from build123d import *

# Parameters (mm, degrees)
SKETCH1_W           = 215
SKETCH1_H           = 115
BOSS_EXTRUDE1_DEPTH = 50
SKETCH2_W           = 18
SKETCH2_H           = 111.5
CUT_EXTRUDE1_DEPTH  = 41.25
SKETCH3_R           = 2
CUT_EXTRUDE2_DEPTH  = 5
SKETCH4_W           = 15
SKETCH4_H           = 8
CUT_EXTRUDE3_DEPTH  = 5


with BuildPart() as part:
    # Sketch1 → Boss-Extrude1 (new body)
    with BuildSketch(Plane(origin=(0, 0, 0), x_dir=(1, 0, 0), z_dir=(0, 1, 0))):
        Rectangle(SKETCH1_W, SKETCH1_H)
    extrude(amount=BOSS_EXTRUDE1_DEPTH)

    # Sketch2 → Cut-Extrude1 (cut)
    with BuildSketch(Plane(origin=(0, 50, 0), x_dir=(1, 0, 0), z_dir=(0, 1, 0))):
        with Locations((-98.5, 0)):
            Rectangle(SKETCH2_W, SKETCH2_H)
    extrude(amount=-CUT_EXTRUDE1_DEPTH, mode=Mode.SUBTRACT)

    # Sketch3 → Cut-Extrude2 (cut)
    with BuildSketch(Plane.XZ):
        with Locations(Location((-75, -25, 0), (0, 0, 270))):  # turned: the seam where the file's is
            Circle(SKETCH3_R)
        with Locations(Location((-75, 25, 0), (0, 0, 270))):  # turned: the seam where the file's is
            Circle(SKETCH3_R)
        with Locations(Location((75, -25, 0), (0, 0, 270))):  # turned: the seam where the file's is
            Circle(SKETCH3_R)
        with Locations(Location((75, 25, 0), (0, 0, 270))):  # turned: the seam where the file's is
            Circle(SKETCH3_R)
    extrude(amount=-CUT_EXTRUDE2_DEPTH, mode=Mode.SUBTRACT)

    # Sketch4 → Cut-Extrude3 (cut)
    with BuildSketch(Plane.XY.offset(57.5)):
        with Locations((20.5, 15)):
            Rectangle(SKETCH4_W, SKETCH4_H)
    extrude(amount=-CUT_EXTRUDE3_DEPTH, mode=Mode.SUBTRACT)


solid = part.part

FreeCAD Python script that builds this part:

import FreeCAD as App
import Part
import Sketcher

doc = App.newDocument("Part")
params = doc.addObject("Spreadsheet::Sheet", "Params")
for row, (alias, value) in enumerate([
    ("sketch1_width", "215 mm"),
    ("sketch1_height", "115 mm"),
    ("pad1_length", "50 mm"),
    ("sketch2_width", "18 mm"),
    ("sketch2_height", "111.5 mm"),
    ("pocket1_length", "41.25 mm"),
    ("sketch3_diameter", "4 mm"),
    ("pocket2_length", "5 mm"),
    ("sketch4_width", "15 mm"),
    ("sketch4_height", "8 mm"),
    ("pocket3_length", "5 mm"),
], start=1):
    params.set(f"A{row}", alias)
    params.set(f"B{row}", "=" + value)
    params.setAlias(f"B{row}", alias)

body = doc.addObject("PartDesign::Body", "Body")

# Sketch on XZ plane
sketch1 = body.newObject("Sketcher::SketchObject", "Sketch")
sketch1.AttachmentSupport = (doc.getObject("XZ_Plane"), [""])
sketch1.MapMode = "FlatFace"
sketch1.addGeometry([
    Part.LineSegment(App.Vector(-108, -58, 0), App.Vector(-108, 58, 0)),
    Part.LineSegment(App.Vector(-108, 58, 0), App.Vector(108, 58, 0)),
    Part.LineSegment(App.Vector(108, 58, 0), App.Vector(108, -58, 0)),
    Part.LineSegment(App.Vector(108, -58, 0), App.Vector(-108, -58, 0)),
], False)
sketch1.addConstraint([
    Sketcher.Constraint("Coincident", 0, 2, 1, 1),
    Sketcher.Constraint("Coincident", 1, 2, 2, 1),
    Sketcher.Constraint("Coincident", 2, 2, 3, 1),
    Sketcher.Constraint("Coincident", 3, 2, 0, 1),
    Sketcher.Constraint("Vertical", 0),
    Sketcher.Constraint("Horizontal", 1),
    Sketcher.Constraint("Vertical", 2),
    Sketcher.Constraint("Horizontal", 3),
    Sketcher.Constraint("Symmetric", 0, 2, 2, 2, -1, 1),
    Sketcher.Constraint("DistanceX", 1, 1, 1, 2, 215.0),
    Sketcher.Constraint("DistanceY", 0, 1, 0, 2, 115.0),
])
sketch1.setExpression("Constraints[9]", "Params.sketch1_width")
sketch1.setExpression("Constraints[10]", "Params.sketch1_height")
pad1 = body.newObject("PartDesign::Pad", "Pad")
pad1.Profile = sketch1
pad1.setExpression("Length", "Params.pad1_length")
pad1.Reversed = True

# Sketch on XZ plane
sketch2 = body.newObject("Sketcher::SketchObject", "Sketch001")
sketch2.AttachmentSupport = (doc.getObject("XZ_Plane"), [""])
sketch2.MapMode = "FlatFace"
sketch2.AttachmentOffset = App.Placement(App.Vector(0, 0, -50), App.Rotation())
sketch2.addGeometry([
    Part.LineSegment(App.Vector(-108, -56, 0), App.Vector(-108, 56, 0)),
    Part.LineSegment(App.Vector(-108, 56, 0), App.Vector(-90, 56, 0)),
    Part.LineSegment(App.Vector(-90, 56, 0), App.Vector(-90, -56, 0)),
    Part.LineSegment(App.Vector(-90, -56, 0), App.Vector(-108, -56, 0)),
], False)
sketch2.addConstraint([
    Sketcher.Constraint("Coincident", 0, 2, 1, 1),
    Sketcher.Constraint("Coincident", 1, 2, 2, 1),
    Sketcher.Constraint("Coincident", 2, 2, 3, 1),
    Sketcher.Constraint("Coincident", 3, 2, 0, 1),
    Sketcher.Constraint("Vertical", 0),
    Sketcher.Constraint("Horizontal", 1),
    Sketcher.Constraint("Vertical", 2),
    Sketcher.Constraint("Horizontal", 3),
    Sketcher.Constraint("DistanceX", 1, 1, 1, 2, 18.0),
    Sketcher.Constraint("DistanceY", 0, 1, 0, 2, 111.5),
    Sketcher.Constraint("DistanceX", 0, 2, -1, 1, 107.5),
    Sketcher.Constraint("DistanceY", -1, 1, 0, 2, 55.75),
])
sketch2.setExpression("Constraints[8]", "Params.sketch2_width")
sketch2.setExpression("Constraints[9]", "Params.sketch2_height")
pocket1 = body.newObject("PartDesign::Pocket", "Pocket")
pocket1.Profile = sketch2
pocket1.setExpression("Length", "Params.pocket1_length")
pocket1.Reversed = True

# Sketch on XZ plane
sketch3 = body.newObject("Sketcher::SketchObject", "Sketch002")
sketch3.AttachmentSupport = (doc.getObject("XZ_Plane"), [""])
sketch3.MapMode = "FlatFace"
sketch3.addGeometry([
    Part.Circle(App.Vector(-75, -25, 0), App.Vector(0, 0, 1), 2),
    Part.Circle(App.Vector(-75, 25, 0), App.Vector(0, 0, 1), 2),
    Part.Circle(App.Vector(75, -25, 0), App.Vector(0, 0, 1), 2),
    Part.Circle(App.Vector(75, 25, 0), App.Vector(0, 0, 1), 2),
], False)
sketch3.addConstraint([
    Sketcher.Constraint("Equal", 0, 1),
    Sketcher.Constraint("Equal", 1, 2),
    Sketcher.Constraint("Equal", 2, 3),
    Sketcher.Constraint("Symmetric", 1, 3, 2, 3, -1, 1),
    Sketcher.Constraint("Symmetric", 0, 3, 3, 3, -1, 1),
    Sketcher.Constraint("Symmetric", 0, 3, 2, 3, -2),
    Sketcher.Constraint("Diameter", 0, 4.0),
    Sketcher.Constraint("DistanceX", 0, 3, -1, 1, 75.0),
    Sketcher.Constraint("DistanceY", 0, 3, -1, 1, 25.0),
])
sketch3.setExpression("Constraints[6]", "Params.sketch3_diameter")
pocket2 = body.newObject("PartDesign::Pocket", "Pocket001")
pocket2.Profile = sketch3
pocket2.setExpression("Length", "Params.pocket2_length")

# Sketch on XY plane
sketch4 = body.newObject("Sketcher::SketchObject", "Sketch003")
sketch4.AttachmentSupport = (doc.getObject("XY_Plane"), [""])
sketch4.MapMode = "FlatFace"
sketch4.AttachmentOffset = App.Placement(App.Vector(0, 0, 57.5), App.Rotation())
sketch4.addGeometry([
    Part.LineSegment(App.Vector(13, 19, 0), App.Vector(13, 11, 0)),
    Part.LineSegment(App.Vector(13, 11, 0), App.Vector(28, 11, 0)),
    Part.LineSegment(App.Vector(28, 11, 0), App.Vector(28, 19, 0)),
    Part.LineSegment(App.Vector(28, 19, 0), App.Vector(13, 19, 0)),
], False)
sketch4.addConstraint([
    Sketcher.Constraint("Coincident", 0, 2, 1, 1),
    Sketcher.Constraint("Coincident", 1, 2, 2, 1),
    Sketcher.Constraint("Coincident", 2, 2, 3, 1),
    Sketcher.Constraint("Coincident", 3, 2, 0, 1),
    Sketcher.Constraint("Vertical", 0),
    Sketcher.Constraint("Horizontal", 1),
    Sketcher.Constraint("Vertical", 2),
    Sketcher.Constraint("Horizontal", 3),
    Sketcher.Constraint("DistanceX", 1, 1, 1, 2, 15.0),
    Sketcher.Constraint("DistanceY", 0, 2, 0, 1, 8.0),
    Sketcher.Constraint("DistanceX", -1, 1, 0, 2, 13.0),
    Sketcher.Constraint("DistanceY", -1, 1, 0, 2, 11.0),
])
sketch4.setExpression("Constraints[8]", "Params.sketch4_width")
sketch4.setExpression("Constraints[9]", "Params.sketch4_height")
pocket3 = body.newObject("PartDesign::Pocket", "Pocket002")
pocket3.Profile = sketch4
pocket3.setExpression("Length", "Params.pocket3_length")

doc.recompute()
